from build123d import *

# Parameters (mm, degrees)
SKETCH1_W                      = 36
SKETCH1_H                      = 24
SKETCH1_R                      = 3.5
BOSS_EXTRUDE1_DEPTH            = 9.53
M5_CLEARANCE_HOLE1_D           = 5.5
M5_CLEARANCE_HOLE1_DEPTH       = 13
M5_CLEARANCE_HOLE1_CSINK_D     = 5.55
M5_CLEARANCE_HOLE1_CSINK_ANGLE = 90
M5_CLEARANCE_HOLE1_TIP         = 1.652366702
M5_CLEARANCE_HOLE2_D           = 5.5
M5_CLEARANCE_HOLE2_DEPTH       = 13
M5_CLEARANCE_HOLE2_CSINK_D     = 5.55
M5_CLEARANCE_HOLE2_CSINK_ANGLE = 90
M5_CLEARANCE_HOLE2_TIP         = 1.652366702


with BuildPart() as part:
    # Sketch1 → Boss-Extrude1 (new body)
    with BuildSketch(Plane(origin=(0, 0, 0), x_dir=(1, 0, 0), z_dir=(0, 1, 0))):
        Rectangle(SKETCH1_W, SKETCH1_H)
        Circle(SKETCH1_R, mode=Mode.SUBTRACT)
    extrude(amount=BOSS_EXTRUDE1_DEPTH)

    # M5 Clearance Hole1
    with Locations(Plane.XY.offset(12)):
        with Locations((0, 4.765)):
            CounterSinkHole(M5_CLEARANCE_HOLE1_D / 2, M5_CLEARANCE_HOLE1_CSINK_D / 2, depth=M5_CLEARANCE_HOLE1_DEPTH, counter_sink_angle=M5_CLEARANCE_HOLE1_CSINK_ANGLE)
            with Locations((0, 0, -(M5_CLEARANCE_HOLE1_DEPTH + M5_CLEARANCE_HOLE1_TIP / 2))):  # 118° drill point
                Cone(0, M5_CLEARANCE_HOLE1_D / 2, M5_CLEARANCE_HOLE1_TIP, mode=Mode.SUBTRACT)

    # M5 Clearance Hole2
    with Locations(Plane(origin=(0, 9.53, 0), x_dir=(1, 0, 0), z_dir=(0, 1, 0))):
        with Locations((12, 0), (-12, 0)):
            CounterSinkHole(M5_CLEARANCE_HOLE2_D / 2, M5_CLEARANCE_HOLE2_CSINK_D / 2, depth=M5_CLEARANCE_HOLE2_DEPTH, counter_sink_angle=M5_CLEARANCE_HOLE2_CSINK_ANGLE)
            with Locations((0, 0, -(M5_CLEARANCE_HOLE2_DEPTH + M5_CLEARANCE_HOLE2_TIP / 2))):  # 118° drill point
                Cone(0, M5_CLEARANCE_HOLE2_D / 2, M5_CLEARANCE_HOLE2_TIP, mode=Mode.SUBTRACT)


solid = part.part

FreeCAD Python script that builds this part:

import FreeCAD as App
import Part
import Sketcher
from FreeCAD import Vector


def add_polygon(sketch, points):
    """Adds a closed chain of lines whose ends are joined by coincident constraints."""
    first, n = sketch.GeometryCount, len(points)
    for a, b in zip(points, points[1:] + points[:1]):
        sketch.addGeometry(Part.LineSegment(App.Vector(*a, 0), App.Vector(*b, 0)), False)
    for i in range(n):
        sketch.addConstraint(Sketcher.Constraint("Coincident", first + i, 2, first + (i + 1) % n, 1))

doc = App.newDocument("Part")
body = doc.addObject("PartDesign::Body", "Body")

# Sketch on XZ plane
sketch1 = body.newObject("Sketcher::SketchObject", "Sketch")
sketch1.AttachmentSupport = (doc.getObject("XZ_Plane"), [""])
sketch1.MapMode = "FlatFace"
add_polygon(sketch1, [(-18, -12), (-18, 12), (18, 12), (18, -12)])  # lines 0-3
sketch1.addGeometry(Part.Circle(Vector(0, 0, 0), Vector(0, 0, 1), 3.5), False)  # 4
sketch1.addConstraint(Sketcher.Constraint("Vertical", 0))
sketch1.addConstraint(Sketcher.Constraint("Horizontal", 1))
sketch1.addConstraint(Sketcher.Constraint("Vertical", 2))
sketch1.addConstraint(Sketcher.Constraint("Horizontal", 3))
sketch1.addConstraint(Sketcher.Constraint("Coincident", 4, 3, -1, 1))
sketch1.addConstraint(Sketcher.Constraint("Symmetric", 0, 2, 2, 2, -1, 1))
sketch1.addConstraint(Sketcher.Constraint("Diameter", 4, 7.0))
sketch1.addConstraint(Sketcher.Constraint("DistanceX", 1, 1, 1, 2, 36.0))
sketch1.addConstraint(Sketcher.Constraint("DistanceY", 0, 1, 0, 2, 24.0))
pad1 = body.newObject("PartDesign::Pad", "Pad")
pad1.Profile = sketch1
pad1.Length = 9.53
pad1.Reversed = True

# Sketch on XY plane
sketch2 = body.newObject("Sketcher::SketchObject", "Sketch001")
sketch2.AttachmentSupport = (doc.getObject("XY_Plane"), [""])
sketch2.MapMode = "FlatFace"
sketch2.AttachmentOffset = App.Placement(Vector(0, 0, 12), App.Rotation())
sketch2.addGeometry(Part.Circle(Vector(0, 4.8, 0), Vector(0, 0, 1), 2.8), False)
sketch2.addConstraint(Sketcher.Constraint("PointOnObject", 0, 3, -2))
sketch2.addConstraint(Sketcher.Constraint("Diameter", 0, 5.5))
sketch2.addConstraint(Sketcher.Constraint("DistanceY", -1, 1, 0, 3, 4.765))
doc.recompute()
hole = body.newObject("PartDesign::Hole", "Hole")
hole.Profile = sketch2
hole.ThreadType = "None"
hole.Diameter = 5.5
hole.DepthType = "Dimension"
hole.Depth = 13
hole.DrillPoint = "Angled"
hole.DrillPointAngle = 118
hole.HoleCutType = "Countersink"
hole.HoleCutDiameter = 5.55
hole.HoleCutCountersinkAngle = 90

# Sketch on XZ plane
sketch3 = body.newObject("Sketcher::SketchObject", "Sketch002")
sketch3.AttachmentSupport = (doc.getObject("XZ_Plane"), [""])
sketch3.MapMode = "FlatFace"
sketch3.AttachmentOffset = App.Placement(Vector(0, 0, -9.53), App.Rotation())
sketch3.addGeometry(Part.Circle(Vector(12, 0, 0), Vector(0, 0, 1), 2.8), False)
sketch3.addGeometry(Part.Circle(Vector(-12, 0, 0), Vector(0, 0, 1), 2.8), False)
sketch3.addConstraint(Sketcher.Constraint("Equal", 0, 1))
sketch3.addConstraint(Sketcher.Constraint("Symmetric", 0, 3, 1, 3, -1, 1))
sketch3.addConstraint(Sketcher.Constraint("PointOnObject", 0, 3, -1))
sketch3.addConstraint(Sketcher.Constraint("Diameter", 0, 5.5))
sketch3.addConstraint(Sketcher.Constraint("DistanceX", -1, 1, 0, 3, 12.0))
doc.recompute()
hole2 = body.newObject("PartDesign::Hole", "Hole001")
hole2.Profile = sketch3
hole2.ThreadType = "None"
hole2.Diameter = 5.5
hole2.DepthType = "Dimension"
hole2.Depth = 13
hole2.DrillPoint = "Angled"
hole2.DrillPointAngle = 118
hole2.HoleCutType = "Countersink"
hole2.HoleCutDiameter = 5.55
hole2.HoleCutCountersinkAngle = 90
hole2.Reversed = True

doc.recompute()
